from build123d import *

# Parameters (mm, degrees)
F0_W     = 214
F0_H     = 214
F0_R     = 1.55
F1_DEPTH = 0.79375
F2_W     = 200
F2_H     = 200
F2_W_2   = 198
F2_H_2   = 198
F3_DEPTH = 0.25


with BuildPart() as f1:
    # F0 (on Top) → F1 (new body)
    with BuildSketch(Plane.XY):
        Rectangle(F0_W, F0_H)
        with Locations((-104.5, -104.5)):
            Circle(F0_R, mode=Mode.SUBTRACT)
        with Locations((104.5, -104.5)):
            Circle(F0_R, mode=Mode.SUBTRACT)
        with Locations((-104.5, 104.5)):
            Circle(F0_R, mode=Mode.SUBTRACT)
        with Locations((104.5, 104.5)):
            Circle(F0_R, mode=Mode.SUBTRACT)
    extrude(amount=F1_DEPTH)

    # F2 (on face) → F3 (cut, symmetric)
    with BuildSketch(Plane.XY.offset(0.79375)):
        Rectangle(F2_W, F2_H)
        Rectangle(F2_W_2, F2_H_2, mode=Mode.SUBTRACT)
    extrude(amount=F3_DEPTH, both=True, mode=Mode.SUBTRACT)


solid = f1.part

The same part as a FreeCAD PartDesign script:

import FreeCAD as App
import Part
import Sketcher

V = App.Vector


def add_polygon(sketch, points):
    """Adds a closed chain of lines whose ends are joined by coincident constraints."""
    first, n = sketch.GeometryCount, len(points)
    for a, b in zip(points, points[1:] + points[:1]):
        sketch.addGeometry(Part.LineSegment(App.Vector(*a, 0), App.Vector(*b, 0)), False)
    for i in range(n):
        sketch.addConstraint(Sketcher.Constraint("Coincident", first + i, 2, first + (i + 1) % n, 1))

doc = App.newDocument("Part")
body = doc.addObject("PartDesign::Body", "Body")

# Sketch on XY plane
sketch1 = body.newObject("Sketcher::SketchObject", "Sketch")
sketch1.AttachmentSupport = (doc.getObject("XY_Plane"), [""])
sketch1.MapMode = "FlatFace"
add_polygon(sketch1, [(-107, 107), (-107, -107), (107, -107), (107, 107)])  # lines 0-3
sketch1.addGeometry(Part.Circle(V(-104.5, -104.5, 0), V(0, 0, 1), 1.6), False)  # 4
sketch1.addGeometry(Part.Circle(V(104.5, -104.5, 0), V(0, 0, 1), 1.6), False)  # 5
sketch1.addGeometry(Part.Circle(V(-104.5, 104.5, 0), V(0, 0, 1), 1.6), False)  # 6
sketch1.addGeometry(Part.Circle(V(104.5, 104.5, 0), V(0, 0, 1), 1.6), False)  # 7
sketch1.addConstraint(Sketcher.Constraint("Vertical", 0))
sketch1.addConstraint(Sketcher.Constraint("Horizontal", 1))
sketch1.addConstraint(Sketcher.Constraint("Vertical", 2))
sketch1.addConstraint(Sketcher.Constraint("Horizontal", 3))
sketch1.addConstraint(Sketcher.Constraint("Equal", 4, 5))
sketch1.addConstraint(Sketcher.Constraint("Equal", 5, 6))
sketch1.addConstraint(Sketcher.Constraint("Equal", 6, 7))
sketch1.addConstraint(Sketcher.Constraint("Symmetric", 5, 3, 6, 3, -1, 1))
sketch1.addConstraint(Sketcher.Constraint("Symmetric", 4, 3, 7, 3, -1, 1))
sketch1.addConstraint(Sketcher.Constraint("Symmetric", 0, 2, 2, 2, -1, 1))
sketch1.addConstraint(Sketcher.Constraint("Symmetric", 4, 3, 5, 3, -2))
sketch1.addConstraint(Sketcher.Constraint("Equal", 3, 0))
sketch1.addConstraint(Sketcher.Constraint("Diameter", 4, 3.1))
sketch1.addConstraint(Sketcher.Constraint("DistanceX", 1, 1, 1, 2, 214.0))
sketch1.addConstraint(Sketcher.Constraint("DistanceX", 4, 3, 5, 3, 209.0))
sketch1.addConstraint(Sketcher.Constraint("DistanceY", 4, 3, 6, 3, 209.0))
pad1 = body.newObject("PartDesign::Pad", "Pad")
pad1.Profile = sketch1
pad1.Length = 0.79375

# Sketch on XY plane
sketch2 = body.newObject("Sketcher::SketchObject", "Sketch001")
sketch2.AttachmentSupport = (doc.getObject("XY_Plane"), [""])
sketch2.MapMode = "FlatFace"
sketch2.AttachmentOffset = App.Placement(V(0, 0, 0.79375), App.Rotation())
add_polygon(sketch2, [(-100, 100), (-100, -100), (100, -100), (100, 100)])  # lines 0-3
add_polygon(sketch2, [(99, -99), (-99, -99), (-99, 99), (99, 99)])  # lines 4-7
sketch2.addConstraint(Sketcher.Constraint("Vertical", 0))
sketch2.addConstraint(Sketcher.Constraint("Horizontal", 1))
sketch2.addConstraint(Sketcher.Constraint("Vertical", 2))
sketch2.addConstraint(Sketcher.Constraint("Horizontal", 3))
sketch2.addConstraint(Sketcher.Constraint("Horizontal", 4))
sketch2.addConstraint(Sketcher.Constraint("Vertical", 5))
sketch2.addConstraint(Sketcher.Constraint("Horizontal", 6))
sketch2.addConstraint(Sketcher.Constraint("Vertical", 7))
sketch2.addConstraint(Sketcher.Constraint("Symmetric", 0, 2, 2, 2, -1, 1))
sketch2.addConstraint(Sketcher.Constraint("Symmetric", 4, 2, 6, 2, -1, 1))
sketch2.addConstraint(Sketcher.Constraint("Equal", 3, 0))
sketch2.addConstraint(Sketcher.Constraint("Equal", 6, 5))
sketch2.addConstraint(Sketcher.Constraint("DistanceX", 1, 1, 1, 2, 200.0))
sketch2.addConstraint(Sketcher.Constraint("DistanceX", 4, 2, 4, 1, 198.0))
pocket1 = body.newObject("PartDesign::Pocket", "Pocket")
pocket1.Profile = sketch2
pocket1.Length = 0.5
pocket1.Midplane = True

doc.recompute()
